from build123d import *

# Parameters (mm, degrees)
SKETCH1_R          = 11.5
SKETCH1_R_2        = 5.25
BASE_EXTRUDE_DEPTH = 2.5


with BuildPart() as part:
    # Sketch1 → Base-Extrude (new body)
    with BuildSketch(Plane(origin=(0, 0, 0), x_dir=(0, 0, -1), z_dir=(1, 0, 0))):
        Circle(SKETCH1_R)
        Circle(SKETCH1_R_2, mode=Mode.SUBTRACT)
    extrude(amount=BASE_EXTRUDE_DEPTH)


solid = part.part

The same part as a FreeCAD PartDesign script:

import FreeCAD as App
import Part
import Sketcher

V = App.Vector
Q = App.Units.Quantity

doc = App.newDocument("Part")
body = doc.addObject("PartDesign::Body", "Body")

# Sketch on YZ plane
sketch1 = doc.addObject("Sketcher::SketchObject", "Sketch")
body.addObject(sketch1)
sketch1.AttachmentSupport = (doc.YZ_Plane, [""])
sketch1.MapMode = "FlatFace"
sketch1.addGeometry([
    Part.Circle(V(0, 0, 0), V(0, 0, 1), 12),
    Part.Circle(V(0, 0, 0), V(0, 0, 1), 5),
], False)
sketch1.addConstraint([
    Sketcher.Constraint("Coincident", 0, 3, -1, 1),
    Sketcher.Constraint("Coincident", 1, 3, -1, 1),
    Sketcher.Constraint("Diameter", 0, Q("23 mm")),
    Sketcher.Constraint("Diameter", 1, Q("10.5 mm")),
])
pad1 = doc.addObject("PartDesign::Pad", "Pad")
body.addObject(pad1)
pad1.Profile = sketch1
pad1.Length = 2.5

doc.recompute()
